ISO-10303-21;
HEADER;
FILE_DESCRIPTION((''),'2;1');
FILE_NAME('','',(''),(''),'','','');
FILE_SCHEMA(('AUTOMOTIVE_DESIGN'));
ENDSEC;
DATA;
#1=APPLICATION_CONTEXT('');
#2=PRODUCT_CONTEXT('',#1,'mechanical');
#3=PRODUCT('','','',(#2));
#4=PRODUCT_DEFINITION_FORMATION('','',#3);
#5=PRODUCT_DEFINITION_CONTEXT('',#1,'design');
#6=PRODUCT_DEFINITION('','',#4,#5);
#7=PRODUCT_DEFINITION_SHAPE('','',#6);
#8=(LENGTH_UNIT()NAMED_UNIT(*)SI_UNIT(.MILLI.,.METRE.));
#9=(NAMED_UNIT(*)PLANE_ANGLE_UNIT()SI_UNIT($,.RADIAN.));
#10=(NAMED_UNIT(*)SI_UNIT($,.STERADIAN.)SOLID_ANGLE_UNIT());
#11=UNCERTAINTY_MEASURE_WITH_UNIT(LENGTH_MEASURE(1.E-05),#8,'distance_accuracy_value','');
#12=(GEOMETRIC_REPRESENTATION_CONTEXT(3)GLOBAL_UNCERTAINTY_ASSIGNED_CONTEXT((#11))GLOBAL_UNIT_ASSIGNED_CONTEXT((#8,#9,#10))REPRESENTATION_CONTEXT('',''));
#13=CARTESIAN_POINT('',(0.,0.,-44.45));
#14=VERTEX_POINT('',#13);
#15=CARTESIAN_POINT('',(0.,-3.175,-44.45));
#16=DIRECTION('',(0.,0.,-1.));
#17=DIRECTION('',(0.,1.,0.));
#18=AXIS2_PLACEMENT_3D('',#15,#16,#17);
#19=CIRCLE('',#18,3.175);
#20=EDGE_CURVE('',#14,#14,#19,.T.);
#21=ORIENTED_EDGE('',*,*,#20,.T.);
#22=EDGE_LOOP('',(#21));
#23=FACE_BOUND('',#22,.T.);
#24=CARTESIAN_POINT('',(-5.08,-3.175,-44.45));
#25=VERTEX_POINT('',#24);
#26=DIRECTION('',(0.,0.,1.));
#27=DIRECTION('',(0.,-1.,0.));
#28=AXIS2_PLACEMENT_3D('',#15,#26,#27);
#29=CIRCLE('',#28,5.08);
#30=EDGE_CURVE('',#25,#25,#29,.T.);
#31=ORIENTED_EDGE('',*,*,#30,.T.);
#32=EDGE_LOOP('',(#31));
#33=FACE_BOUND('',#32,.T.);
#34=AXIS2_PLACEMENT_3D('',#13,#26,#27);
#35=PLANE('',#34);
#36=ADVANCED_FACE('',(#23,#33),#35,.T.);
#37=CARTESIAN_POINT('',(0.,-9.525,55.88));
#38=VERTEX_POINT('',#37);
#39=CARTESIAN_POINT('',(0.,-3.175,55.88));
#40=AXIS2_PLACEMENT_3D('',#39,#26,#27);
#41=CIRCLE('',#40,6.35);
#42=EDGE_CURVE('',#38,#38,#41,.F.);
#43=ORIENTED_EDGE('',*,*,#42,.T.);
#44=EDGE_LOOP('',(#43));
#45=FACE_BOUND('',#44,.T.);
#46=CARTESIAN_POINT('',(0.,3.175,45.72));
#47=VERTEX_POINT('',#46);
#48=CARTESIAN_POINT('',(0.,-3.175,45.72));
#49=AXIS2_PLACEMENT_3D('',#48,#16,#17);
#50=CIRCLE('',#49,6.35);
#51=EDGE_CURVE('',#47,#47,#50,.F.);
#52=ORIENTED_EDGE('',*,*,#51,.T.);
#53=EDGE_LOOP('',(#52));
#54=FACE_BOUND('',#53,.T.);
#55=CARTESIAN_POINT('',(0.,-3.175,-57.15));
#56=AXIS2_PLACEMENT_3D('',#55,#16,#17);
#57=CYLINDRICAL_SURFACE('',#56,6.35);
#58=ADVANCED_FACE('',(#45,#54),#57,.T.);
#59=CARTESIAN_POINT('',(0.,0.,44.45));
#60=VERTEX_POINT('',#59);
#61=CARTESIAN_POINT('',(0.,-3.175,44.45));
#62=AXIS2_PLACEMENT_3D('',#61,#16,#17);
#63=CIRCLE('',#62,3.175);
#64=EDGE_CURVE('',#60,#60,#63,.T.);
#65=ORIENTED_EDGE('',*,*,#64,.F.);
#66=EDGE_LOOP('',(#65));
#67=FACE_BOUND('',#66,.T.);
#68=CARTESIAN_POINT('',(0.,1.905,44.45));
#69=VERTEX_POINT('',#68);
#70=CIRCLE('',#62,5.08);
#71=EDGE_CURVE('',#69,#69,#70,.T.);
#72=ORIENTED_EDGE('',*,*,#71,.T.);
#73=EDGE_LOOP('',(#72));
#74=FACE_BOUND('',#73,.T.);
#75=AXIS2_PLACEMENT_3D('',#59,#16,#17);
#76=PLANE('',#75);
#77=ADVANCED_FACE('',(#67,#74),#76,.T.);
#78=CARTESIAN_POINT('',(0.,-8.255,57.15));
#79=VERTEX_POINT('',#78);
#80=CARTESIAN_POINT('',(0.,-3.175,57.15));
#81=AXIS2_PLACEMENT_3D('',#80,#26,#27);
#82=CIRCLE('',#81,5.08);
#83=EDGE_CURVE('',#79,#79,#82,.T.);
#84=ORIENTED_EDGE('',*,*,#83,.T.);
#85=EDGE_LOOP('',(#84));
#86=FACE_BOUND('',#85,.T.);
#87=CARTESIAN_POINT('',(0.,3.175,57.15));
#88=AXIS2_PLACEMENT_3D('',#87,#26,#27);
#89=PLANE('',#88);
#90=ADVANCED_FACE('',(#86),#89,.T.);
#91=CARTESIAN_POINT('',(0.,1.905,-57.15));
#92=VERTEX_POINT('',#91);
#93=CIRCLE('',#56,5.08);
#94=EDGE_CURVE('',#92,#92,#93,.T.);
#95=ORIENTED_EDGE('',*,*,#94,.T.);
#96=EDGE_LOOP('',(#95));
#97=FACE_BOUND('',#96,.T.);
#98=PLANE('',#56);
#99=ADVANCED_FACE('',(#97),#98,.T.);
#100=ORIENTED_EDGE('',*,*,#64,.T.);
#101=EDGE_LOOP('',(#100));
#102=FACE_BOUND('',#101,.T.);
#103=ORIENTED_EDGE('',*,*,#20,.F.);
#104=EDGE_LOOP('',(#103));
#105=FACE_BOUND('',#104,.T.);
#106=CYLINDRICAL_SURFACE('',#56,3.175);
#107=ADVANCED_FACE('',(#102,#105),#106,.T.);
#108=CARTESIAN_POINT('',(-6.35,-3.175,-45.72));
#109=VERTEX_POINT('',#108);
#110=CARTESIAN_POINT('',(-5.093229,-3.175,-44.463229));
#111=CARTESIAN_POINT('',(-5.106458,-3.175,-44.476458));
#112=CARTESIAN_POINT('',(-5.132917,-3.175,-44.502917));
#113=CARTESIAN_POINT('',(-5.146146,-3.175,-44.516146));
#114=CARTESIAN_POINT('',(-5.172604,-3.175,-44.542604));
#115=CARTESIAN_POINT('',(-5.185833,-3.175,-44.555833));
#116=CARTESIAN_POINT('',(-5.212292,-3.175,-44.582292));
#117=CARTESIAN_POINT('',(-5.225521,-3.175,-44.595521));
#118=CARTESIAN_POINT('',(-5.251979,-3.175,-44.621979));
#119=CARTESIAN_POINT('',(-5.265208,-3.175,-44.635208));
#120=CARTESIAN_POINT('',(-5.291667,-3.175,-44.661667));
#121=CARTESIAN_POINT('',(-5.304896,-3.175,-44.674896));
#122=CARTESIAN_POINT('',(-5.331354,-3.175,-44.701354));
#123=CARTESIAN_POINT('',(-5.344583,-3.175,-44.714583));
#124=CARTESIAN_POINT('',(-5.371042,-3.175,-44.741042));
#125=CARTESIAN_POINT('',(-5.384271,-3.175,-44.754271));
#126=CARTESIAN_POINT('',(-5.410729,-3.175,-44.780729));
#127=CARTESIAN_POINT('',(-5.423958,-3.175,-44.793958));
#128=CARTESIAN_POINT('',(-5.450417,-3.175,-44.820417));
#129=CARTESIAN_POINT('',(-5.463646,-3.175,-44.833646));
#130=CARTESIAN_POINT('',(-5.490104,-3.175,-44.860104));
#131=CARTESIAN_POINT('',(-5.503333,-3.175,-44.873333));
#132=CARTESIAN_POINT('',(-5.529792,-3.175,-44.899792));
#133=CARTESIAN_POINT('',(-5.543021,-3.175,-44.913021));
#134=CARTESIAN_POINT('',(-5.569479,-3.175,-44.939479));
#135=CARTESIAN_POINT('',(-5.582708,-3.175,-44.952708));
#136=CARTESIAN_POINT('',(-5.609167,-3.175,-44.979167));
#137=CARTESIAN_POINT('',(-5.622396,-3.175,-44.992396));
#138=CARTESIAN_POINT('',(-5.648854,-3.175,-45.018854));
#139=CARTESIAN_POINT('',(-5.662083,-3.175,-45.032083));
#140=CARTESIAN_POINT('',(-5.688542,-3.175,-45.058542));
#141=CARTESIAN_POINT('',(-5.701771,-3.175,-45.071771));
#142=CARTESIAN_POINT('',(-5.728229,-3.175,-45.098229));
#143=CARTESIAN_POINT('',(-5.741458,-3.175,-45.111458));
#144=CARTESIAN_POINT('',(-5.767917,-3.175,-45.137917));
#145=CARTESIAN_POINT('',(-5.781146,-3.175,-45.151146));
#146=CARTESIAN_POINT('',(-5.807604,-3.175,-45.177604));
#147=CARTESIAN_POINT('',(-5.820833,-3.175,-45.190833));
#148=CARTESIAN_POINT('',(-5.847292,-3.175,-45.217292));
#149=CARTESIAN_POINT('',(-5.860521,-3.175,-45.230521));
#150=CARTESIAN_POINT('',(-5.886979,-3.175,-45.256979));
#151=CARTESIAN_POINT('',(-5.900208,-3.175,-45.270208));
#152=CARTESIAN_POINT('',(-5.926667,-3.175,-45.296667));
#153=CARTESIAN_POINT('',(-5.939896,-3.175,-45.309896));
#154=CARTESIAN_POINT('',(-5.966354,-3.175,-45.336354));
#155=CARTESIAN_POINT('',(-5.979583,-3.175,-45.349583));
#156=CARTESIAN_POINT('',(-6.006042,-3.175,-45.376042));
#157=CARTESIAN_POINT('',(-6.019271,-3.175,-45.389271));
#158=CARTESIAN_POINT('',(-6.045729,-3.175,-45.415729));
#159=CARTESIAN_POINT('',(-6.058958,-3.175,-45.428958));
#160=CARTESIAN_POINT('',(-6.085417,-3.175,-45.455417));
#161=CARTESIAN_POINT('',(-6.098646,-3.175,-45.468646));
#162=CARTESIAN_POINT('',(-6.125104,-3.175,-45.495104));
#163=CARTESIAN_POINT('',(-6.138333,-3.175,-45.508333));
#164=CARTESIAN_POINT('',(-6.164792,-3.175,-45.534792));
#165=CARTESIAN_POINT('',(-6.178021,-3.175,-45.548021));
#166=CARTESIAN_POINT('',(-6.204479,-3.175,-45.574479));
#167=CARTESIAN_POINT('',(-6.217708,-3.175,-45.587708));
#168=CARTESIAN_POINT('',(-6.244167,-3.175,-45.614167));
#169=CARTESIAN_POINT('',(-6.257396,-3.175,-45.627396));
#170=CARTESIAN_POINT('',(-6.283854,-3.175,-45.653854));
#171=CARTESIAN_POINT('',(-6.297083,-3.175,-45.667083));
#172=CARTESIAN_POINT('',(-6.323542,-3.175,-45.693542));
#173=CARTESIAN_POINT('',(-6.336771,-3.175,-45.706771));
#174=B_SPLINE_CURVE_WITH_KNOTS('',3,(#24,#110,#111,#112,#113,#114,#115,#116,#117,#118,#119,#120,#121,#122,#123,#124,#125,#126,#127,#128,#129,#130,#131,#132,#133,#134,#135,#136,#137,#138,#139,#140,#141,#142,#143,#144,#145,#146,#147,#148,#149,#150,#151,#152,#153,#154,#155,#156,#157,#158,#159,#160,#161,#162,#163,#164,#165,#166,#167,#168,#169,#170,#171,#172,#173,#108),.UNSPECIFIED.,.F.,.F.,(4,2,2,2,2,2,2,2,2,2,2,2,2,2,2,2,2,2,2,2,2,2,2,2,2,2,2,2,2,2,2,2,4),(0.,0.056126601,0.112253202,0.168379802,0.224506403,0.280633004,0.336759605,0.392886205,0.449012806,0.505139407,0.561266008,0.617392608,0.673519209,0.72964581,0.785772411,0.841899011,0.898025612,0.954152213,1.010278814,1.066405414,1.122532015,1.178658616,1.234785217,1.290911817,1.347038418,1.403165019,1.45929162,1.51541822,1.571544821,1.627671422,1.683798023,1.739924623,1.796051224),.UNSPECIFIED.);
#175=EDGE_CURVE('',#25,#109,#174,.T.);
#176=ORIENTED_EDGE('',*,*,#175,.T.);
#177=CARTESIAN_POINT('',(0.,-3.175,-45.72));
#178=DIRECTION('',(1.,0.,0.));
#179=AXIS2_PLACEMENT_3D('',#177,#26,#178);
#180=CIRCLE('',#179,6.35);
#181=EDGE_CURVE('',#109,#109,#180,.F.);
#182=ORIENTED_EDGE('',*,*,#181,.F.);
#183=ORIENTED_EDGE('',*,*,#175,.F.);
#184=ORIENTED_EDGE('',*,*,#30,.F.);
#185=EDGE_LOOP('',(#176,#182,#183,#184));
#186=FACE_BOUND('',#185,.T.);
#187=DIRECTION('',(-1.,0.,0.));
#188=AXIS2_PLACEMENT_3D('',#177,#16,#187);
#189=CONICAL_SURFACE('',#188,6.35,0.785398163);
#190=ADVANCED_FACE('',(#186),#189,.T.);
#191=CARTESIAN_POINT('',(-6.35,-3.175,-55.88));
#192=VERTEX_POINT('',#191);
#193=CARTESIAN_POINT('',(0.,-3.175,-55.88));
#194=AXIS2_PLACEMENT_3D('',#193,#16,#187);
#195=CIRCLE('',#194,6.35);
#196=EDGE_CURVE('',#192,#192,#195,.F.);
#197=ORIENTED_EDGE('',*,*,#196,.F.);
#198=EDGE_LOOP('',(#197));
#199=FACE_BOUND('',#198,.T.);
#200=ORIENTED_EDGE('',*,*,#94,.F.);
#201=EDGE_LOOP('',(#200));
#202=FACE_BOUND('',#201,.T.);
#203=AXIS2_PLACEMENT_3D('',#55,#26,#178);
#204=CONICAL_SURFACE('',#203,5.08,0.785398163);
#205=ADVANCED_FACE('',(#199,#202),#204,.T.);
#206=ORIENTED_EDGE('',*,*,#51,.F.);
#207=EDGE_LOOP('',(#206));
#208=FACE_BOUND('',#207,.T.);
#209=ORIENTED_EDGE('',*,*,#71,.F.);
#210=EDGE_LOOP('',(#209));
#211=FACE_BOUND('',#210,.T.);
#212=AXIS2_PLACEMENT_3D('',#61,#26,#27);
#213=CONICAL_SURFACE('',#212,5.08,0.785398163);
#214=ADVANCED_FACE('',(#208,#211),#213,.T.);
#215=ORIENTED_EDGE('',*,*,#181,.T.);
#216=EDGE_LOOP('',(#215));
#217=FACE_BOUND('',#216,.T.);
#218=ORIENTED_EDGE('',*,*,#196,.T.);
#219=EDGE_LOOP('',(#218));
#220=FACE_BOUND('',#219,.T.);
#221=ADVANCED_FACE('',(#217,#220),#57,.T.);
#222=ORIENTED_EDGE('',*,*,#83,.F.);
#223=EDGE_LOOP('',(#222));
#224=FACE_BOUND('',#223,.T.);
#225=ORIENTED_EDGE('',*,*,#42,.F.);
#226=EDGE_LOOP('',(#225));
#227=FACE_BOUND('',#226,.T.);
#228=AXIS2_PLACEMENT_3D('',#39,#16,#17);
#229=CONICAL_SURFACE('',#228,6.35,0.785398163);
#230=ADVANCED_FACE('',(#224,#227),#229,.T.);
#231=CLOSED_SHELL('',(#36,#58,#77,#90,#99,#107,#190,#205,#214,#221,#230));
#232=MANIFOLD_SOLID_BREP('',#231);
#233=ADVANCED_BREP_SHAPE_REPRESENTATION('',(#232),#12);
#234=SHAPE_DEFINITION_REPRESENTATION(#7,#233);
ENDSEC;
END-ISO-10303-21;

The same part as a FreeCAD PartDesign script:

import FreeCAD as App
import Part
import Sketcher

V = App.Vector
Q = App.Units.Quantity


def edges_at(feature, points):
    """Names of the edges that pass closest to the given points."""
    edges = feature.Shape.Edges
    near = lambda p: min(range(len(edges)), key=lambda i: edges[i].distToShape(Part.Vertex(*p))[0])
    return sorted({f"Edge{near(p) + 1}" for p in points})


def add_polygon(sketch, points):
    """Adds a closed chain of lines whose ends are joined by coincident constraints."""
    first, n = sketch.GeometryCount, len(points)
    for a, b in zip(points, points[1:] + points[:1]):
        sketch.addGeometry(Part.LineSegment(App.Vector(*a, 0), App.Vector(*b, 0)), False)
    for i in range(n):
        sketch.addConstraint(Sketcher.Constraint("Coincident", first + i, 2, first + (i + 1) % n, 1))

doc = App.newDocument("Part")
body = doc.addObject("PartDesign::Body", "Body")

# Sketch on YZ plane
sketch1 = body.newObject("Sketcher::SketchObject", "Sketch")
sketch1.AttachmentSupport = (doc.getObject("YZ_Plane"), [""])
sketch1.MapMode = "FlatFace"
add_polygon(sketch1, [(0, -44.5), (0, 44.5), (3.2, 44.5), (3.2, 57.1), (-3.2, 57.1), (-3.2, -57.1), (3.2, -57.1), (3.2, -44.5)])  # lines 0-7
sketch1.addGeometry(Part.LineSegment(V(-3.2, -57.1, 0), V(-3.2, 57.1, 0)), True)  # axis
sketch1.addConstraint([
    Sketcher.Constraint("Vertical", 0),
    Sketcher.Constraint("Horizontal", 1),
    Sketcher.Constraint("Vertical", 2),
    Sketcher.Constraint("Horizontal", 3),
    Sketcher.Constraint("Vertical", 4),
    Sketcher.Constraint("Horizontal", 5),
    Sketcher.Constraint("Vertical", 6),
    Sketcher.Constraint("Horizontal", 7),
    Sketcher.Constraint("Vertical", 8),
    Sketcher.Constraint("Coincident", 8, 1, 4, 2),
    Sketcher.Constraint("Symmetric", 2, 2, 4, 2, -1, 1),
    Sketcher.Constraint("Symmetric", 0, 2, 7, 2, -1, 1),
    Sketcher.Constraint("Symmetric", 5, 2, 8, 2, -1, 1),
    Sketcher.Constraint("DistanceY", 0, 1, 0, 2, Q("3.5 in")),
    Sketcher.Constraint("DistanceY", 2, 1, 2, 2, Q("0.5 in")),
    Sketcher.Constraint("DistanceX", 3, 2, 3, 1, Q("0.25 in")),
])
revolution = body.newObject("PartDesign::Revolution", "Revolution")
revolution.Profile = sketch1
revolution.ReferenceAxis = (sketch1, ["Axis0"])
revolution.Angle = 360
doc.recompute()

chamfer = body.newObject("PartDesign::Chamfer", "Chamfer")
chamfer.Base = (revolution, edges_at(revolution, [
    (0, -9.525, 44.45),
    (0, -9.525, 57.15),
    (0, -9.525, -57.15),
    (0, -9.525, -44.45),
]))
chamfer.Size = Q("0.05 in")

doc.recompute()
